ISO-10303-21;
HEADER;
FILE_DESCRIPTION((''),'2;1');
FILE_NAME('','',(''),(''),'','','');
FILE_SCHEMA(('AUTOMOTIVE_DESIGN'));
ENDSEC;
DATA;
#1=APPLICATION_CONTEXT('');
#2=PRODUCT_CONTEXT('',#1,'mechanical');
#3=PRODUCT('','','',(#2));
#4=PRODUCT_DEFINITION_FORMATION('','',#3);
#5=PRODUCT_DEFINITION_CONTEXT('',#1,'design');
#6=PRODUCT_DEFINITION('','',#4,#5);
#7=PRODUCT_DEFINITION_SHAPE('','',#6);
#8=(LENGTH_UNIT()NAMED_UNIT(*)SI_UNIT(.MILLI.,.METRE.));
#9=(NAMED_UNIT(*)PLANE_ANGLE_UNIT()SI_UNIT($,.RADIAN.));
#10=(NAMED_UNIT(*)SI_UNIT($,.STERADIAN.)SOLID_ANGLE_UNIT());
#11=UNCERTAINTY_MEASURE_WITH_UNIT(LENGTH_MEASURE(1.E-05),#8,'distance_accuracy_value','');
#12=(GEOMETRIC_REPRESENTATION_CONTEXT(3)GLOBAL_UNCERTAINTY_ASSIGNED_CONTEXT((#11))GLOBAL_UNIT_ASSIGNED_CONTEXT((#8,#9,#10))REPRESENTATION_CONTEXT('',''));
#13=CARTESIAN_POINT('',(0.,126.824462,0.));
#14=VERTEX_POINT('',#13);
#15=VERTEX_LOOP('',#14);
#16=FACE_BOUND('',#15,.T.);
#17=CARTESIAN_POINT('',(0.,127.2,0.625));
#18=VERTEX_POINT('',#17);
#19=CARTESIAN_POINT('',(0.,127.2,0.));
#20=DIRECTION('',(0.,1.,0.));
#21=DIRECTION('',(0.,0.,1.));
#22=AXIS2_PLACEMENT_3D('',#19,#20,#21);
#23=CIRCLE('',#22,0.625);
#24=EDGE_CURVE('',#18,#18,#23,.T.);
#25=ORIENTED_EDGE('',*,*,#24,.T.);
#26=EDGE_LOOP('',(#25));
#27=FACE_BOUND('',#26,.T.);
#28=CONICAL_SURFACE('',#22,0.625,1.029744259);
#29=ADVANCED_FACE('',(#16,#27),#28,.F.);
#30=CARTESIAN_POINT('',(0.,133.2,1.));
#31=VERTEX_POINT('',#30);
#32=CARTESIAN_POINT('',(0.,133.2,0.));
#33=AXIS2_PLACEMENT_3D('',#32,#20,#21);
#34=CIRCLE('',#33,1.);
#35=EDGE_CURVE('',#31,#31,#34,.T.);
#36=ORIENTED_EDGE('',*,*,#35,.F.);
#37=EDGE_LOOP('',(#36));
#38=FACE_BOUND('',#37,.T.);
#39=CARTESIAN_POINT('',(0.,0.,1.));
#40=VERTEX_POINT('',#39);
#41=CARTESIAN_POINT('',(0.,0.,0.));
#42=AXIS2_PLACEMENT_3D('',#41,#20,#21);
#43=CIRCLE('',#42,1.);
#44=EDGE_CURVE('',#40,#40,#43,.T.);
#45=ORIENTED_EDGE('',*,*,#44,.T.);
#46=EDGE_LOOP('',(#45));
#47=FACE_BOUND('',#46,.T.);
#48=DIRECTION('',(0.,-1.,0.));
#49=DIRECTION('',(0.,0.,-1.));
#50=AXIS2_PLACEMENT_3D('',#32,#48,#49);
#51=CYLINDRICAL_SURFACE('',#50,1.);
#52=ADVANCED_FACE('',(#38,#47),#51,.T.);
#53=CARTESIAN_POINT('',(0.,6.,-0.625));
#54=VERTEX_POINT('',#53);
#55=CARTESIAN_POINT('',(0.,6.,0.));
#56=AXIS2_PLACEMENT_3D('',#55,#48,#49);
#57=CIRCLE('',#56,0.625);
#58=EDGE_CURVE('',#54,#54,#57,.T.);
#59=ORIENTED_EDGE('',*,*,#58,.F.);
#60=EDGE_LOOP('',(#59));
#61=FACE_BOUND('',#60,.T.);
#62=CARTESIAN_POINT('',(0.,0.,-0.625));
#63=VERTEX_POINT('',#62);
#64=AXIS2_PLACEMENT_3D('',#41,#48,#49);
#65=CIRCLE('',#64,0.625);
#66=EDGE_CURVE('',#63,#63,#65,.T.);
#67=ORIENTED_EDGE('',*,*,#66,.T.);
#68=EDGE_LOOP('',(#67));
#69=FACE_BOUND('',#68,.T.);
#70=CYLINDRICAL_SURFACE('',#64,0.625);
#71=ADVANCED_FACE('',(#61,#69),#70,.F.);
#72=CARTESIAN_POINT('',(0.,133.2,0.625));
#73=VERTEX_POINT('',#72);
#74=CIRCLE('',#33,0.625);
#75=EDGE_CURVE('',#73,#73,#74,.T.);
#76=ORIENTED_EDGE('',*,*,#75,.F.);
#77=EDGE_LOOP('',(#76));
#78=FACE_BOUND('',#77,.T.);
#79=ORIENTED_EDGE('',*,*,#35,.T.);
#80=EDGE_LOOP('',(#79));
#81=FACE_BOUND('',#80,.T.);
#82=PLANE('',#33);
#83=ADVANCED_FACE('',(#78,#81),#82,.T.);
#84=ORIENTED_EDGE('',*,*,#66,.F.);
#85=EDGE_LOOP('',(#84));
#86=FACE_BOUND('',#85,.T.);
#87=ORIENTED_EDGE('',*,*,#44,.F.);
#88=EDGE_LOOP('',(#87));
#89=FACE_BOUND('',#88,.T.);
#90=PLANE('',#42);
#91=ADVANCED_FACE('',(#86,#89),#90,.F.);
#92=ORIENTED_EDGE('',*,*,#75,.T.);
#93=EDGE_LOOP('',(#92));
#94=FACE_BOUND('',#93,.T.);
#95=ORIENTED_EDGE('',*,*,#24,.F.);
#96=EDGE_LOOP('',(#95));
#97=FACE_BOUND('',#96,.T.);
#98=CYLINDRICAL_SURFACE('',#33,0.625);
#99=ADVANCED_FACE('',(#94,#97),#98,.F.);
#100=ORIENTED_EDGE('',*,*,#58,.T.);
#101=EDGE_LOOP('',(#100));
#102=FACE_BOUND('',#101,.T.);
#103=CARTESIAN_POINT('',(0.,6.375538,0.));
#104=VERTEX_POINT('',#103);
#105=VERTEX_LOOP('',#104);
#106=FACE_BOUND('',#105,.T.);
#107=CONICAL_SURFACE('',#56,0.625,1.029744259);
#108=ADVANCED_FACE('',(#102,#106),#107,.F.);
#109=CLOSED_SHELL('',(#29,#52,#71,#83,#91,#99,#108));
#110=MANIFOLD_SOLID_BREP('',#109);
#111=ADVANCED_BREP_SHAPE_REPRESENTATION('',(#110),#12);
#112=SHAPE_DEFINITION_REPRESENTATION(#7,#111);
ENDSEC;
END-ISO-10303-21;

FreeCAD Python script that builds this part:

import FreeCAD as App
import Part
import Sketcher
Q = App.Units.Quantity


def add_polygon(sketch, points):
    """Adds a closed chain of lines whose ends are joined by coincident constraints."""
    first, n = sketch.GeometryCount, len(points)
    for a, b in zip(points, points[1:] + points[:1]):
        sketch.addGeometry(Part.LineSegment(App.Vector(*a, 0), App.Vector(*b, 0)), False)
    for i in range(n):
        sketch.addConstraint(Sketcher.Constraint("Coincident", first + i, 2, first + (i + 1) % n, 1))

doc = App.newDocument("Part")
params = doc.addObject("Spreadsheet::Sheet", "Params")
for row, (alias, value) in enumerate([
    ("sketch1_diameter", "2 mm"),
    ("pad1_length", "133.2 mm"),
    ("sketch2_width", "6 mm"),
    ("groove_angle", "360 deg"),
], start=1):
    params.set(f"A{row}", alias)
    params.set(f"B{row}", "=" + value)
    params.setAlias(f"B{row}", alias)

body = doc.addObject("PartDesign::Body", "Body")

# Sketch on XZ plane
sketch1 = body.newObject("Sketcher::SketchObject", "Sketch")
sketch1.AttachmentSupport = (doc.getObject("XZ_Plane"), [""])
sketch1.MapMode = "FlatFace"
sketch1.addGeometry(Part.Circle(App.Vector(0, 0, 0), App.Vector(0, 0, 1), 1), False)
sketch1.addConstraint([
    Sketcher.Constraint("Coincident", 0, 3, -1, 1),
    Sketcher.Constraint("Diameter", 0, Q("2 mm")),
])
sketch1.setExpression("Constraints[1]", "Params.sketch1_diameter")
pad1 = body.newObject("PartDesign::Pad", "Pad")
pad1.Profile = sketch1
pad1.setExpression("Length", "Params.pad1_length")
pad1.Reversed = True

# Sketch on YZ plane
sketch2 = body.newObject("Sketcher::SketchObject", "Sketch001")
sketch2.AttachmentSupport = (doc.getObject("YZ_Plane"), [""])
sketch2.MapMode = "FlatFace"
add_polygon(sketch2, [(126.8, 0), (133.2, 0), (133.2, 0.6), (127.2, 0.6)])  # lines 0-3
sketch2.addConstraint([
    Sketcher.Constraint("Horizontal", 0),
    Sketcher.Constraint("Vertical", 1),
    Sketcher.Constraint("Horizontal", 2),
    Sketcher.Constraint("PointOnObject", 0, 2, -1),
    Sketcher.Constraint("DistanceX", 2, 2, 2, 1, Q("6 mm")),
    Sketcher.Constraint("Angle", 3, Q("-121 deg")),
    Sketcher.Constraint("DistanceX", -1, 1, 0, 2, Q("133.2 mm")),
    Sketcher.Constraint("DistanceY", 1, 1, 1, 2, Q("0.625 mm")),
])
sketch2.setExpression("Constraints[8]", "Params.sketch2_width")
groove = body.newObject("PartDesign::Groove", "Groove")
groove.Profile = sketch2
groove.ReferenceAxis = (sketch2, ["H_Axis"])
groove.setExpression("Angle", "Params.groove_angle")
doc.recompute()

datumplane = body.newObject("PartDesign::Plane", "DatumPlane")
datumplane.AttachmentSupport = (doc.getObject("XZ_Plane"), [""])
datumplane.MapMode = "FlatFace"
datumplane.AttachmentOffset = App.Placement(App.Vector(0, 0, -66.6), App.Rotation())
mirrored = body.newObject("PartDesign::Mirrored", "Mirrored")
mirrored.Originals = [groove]
mirrored.MirrorPlane = (datumplane, [""])
body.Tip = mirrored

doc.recompute()
